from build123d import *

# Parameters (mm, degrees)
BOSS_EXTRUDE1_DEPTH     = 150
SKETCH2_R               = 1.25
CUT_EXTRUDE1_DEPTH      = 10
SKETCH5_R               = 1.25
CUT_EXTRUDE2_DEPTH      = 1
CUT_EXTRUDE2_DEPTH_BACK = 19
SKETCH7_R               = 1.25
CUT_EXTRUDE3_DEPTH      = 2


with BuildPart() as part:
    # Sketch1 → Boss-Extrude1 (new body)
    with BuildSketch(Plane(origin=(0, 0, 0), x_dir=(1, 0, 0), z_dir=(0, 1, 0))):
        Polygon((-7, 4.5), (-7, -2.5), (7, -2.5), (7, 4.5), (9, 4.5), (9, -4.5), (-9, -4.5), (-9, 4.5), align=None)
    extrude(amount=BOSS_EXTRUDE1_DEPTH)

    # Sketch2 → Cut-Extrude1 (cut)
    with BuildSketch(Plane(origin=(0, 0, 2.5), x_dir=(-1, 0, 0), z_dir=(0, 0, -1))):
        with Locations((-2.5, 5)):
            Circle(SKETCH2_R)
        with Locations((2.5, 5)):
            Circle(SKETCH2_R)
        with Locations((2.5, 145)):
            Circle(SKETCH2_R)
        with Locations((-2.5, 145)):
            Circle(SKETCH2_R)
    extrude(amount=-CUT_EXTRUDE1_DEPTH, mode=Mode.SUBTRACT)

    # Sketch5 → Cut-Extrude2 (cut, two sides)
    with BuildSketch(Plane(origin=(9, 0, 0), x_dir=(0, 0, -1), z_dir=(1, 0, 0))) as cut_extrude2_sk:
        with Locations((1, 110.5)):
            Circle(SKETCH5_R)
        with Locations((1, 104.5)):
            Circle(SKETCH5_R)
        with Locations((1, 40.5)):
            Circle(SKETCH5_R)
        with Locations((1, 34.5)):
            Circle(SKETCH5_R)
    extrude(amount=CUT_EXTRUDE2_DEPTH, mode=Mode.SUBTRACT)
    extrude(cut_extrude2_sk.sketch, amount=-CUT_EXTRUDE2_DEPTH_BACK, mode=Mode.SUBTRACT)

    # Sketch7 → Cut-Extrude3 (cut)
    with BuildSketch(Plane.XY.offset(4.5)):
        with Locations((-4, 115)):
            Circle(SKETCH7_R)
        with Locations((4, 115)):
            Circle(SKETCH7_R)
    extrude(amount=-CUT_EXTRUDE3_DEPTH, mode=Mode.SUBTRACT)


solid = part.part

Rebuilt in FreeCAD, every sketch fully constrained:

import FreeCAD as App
import Part
import Sketcher

V = App.Vector
Q = App.Units.Quantity


def add_polygon(sketch, points):
    """Adds a closed chain of lines whose ends are joined by coincident constraints."""
    first, n = sketch.GeometryCount, len(points)
    for a, b in zip(points, points[1:] + points[:1]):
        sketch.addGeometry(Part.LineSegment(App.Vector(*a, 0), App.Vector(*b, 0)), False)
    for i in range(n):
        sketch.addConstraint(Sketcher.Constraint("Coincident", first + i, 2, first + (i + 1) % n, 1))

doc = App.newDocument("Part")
params = doc.addObject("Spreadsheet::Sheet", "Params")
for row, (alias, value) in enumerate([
    ("sketch1_width", "2 mm"),
    ("sketch1_width2", "18 mm"),
    ("sketch1_height", "7 mm"),
    ("sketch1_height2", "9 mm"),
    ("pad1_length", "150 mm"),
    ("sketch2_diameter", "2.5 mm"),
    ("pocket1_length", "10 mm"),
    ("sketch3_diameter", "2.5 mm"),
    ("sketch4_diameter", "2.5 mm"),
    ("pocket3_length", "2 mm"),
], start=1):
    params.set(f"A{row}", alias)
    params.set(f"B{row}", "=" + value)
    params.setAlias(f"B{row}", alias)

body = doc.addObject("PartDesign::Body", "Body")

# Sketch on XZ plane
sketch1 = body.newObject("Sketcher::SketchObject", "Sketch")
sketch1.AttachmentSupport = (doc.getObject("XZ_Plane"), [""])
sketch1.MapMode = "FlatFace"
add_polygon(sketch1, [(-7, 2.5), (-7, -4.5), (-9, -4.5), (-9, 4.5), (9, 4.5), (9, -4.5), (7, -4.5), (7, 2.5)])  # lines 0-7
sketch1.addConstraint(Sketcher.Constraint("Vertical", 0))
sketch1.addConstraint(Sketcher.Constraint("Horizontal", 1))
sketch1.addConstraint(Sketcher.Constraint("Vertical", 2))
sketch1.addConstraint(Sketcher.Constraint("Horizontal", 3))
sketch1.addConstraint(Sketcher.Constraint("Vertical", 4))
sketch1.addConstraint(Sketcher.Constraint("Horizontal", 5))
sketch1.addConstraint(Sketcher.Constraint("Vertical", 6))
sketch1.addConstraint(Sketcher.Constraint("Horizontal", 7))
sketch1.addConstraint(Sketcher.Constraint("Symmetric", 1, 2, 3, 2, -1, 1))
sketch1.addConstraint(Sketcher.Constraint("Symmetric", 0, 2, 5, 2, -2))
sketch1.addConstraint(Sketcher.Constraint("DistanceX", 1, 2, 1, 1, Q("2 mm")))
sketch1.addConstraint(Sketcher.Constraint("DistanceX", 3, 1, 3, 2, Q("18 mm")))
sketch1.addConstraint(Sketcher.Constraint("DistanceY", 0, 2, 0, 1, Q("7 mm")))
sketch1.addConstraint(Sketcher.Constraint("DistanceY", 2, 1, 2, 2, Q("9 mm")))
sketch1.setExpression("Constraints[18]", "Params.sketch1_width")
sketch1.setExpression("Constraints[19]", "Params.sketch1_width2")
sketch1.setExpression("Constraints[20]", "Params.sketch1_height")
sketch1.setExpression("Constraints[21]", "Params.sketch1_height2")
pad1 = body.newObject("PartDesign::Pad", "Pad")
pad1.Profile = sketch1
pad1.setExpression("Length", "Params.pad1_length")
pad1.Reversed = True

# Sketch on XY plane
sketch2 = body.newObject("Sketcher::SketchObject", "Sketch001")
sketch2.AttachmentSupport = (doc.getObject("XY_Plane"), [""])
sketch2.MapMode = "FlatFace"
sketch2.AttachmentOffset = App.Placement(V(0, 0, 2.5), App.Rotation())
sketch2.addGeometry(Part.Circle(V(2.5, 5, 0), V(0, 0, 1), 1.2), False)
sketch2.addGeometry(Part.Circle(V(-2.5, 5, 0), V(0, 0, 1), 1.2), False)
sketch2.addGeometry(Part.Circle(V(-2.5, 145, 0), V(0, 0, 1), 1.2), False)
sketch2.addGeometry(Part.Circle(V(2.5, 145, 0), V(0, 0, 1), 1.2), False)
sketch2.addConstraint(Sketcher.Constraint("Equal", 0, 1))
sketch2.addConstraint(Sketcher.Constraint("Equal", 1, 2))
sketch2.addConstraint(Sketcher.Constraint("Equal", 2, 3))
sketch2.addConstraint(Sketcher.Constraint("Symmetric", 0, 3, 1, 3, -2))
sketch2.addConstraint(Sketcher.Constraint("Symmetric", 2, 3, 3, 3, -2))
sketch2.addConstraint(Sketcher.Constraint("Vertical", 1, 3, 2, 3))
sketch2.addConstraint(Sketcher.Constraint("Diameter", 0, Q("2.5 mm")))
sketch2.addConstraint(Sketcher.Constraint("DistanceY", -1, 1, 0, 3, Q("5 mm")))
sketch2.addConstraint(Sketcher.Constraint("DistanceY", -1, 1, 2, 3, Q("145 mm")))
sketch2.addConstraint(Sketcher.Constraint("DistanceX", 1, 3, 0, 3, Q("5 mm")))
sketch2.setExpression("Constraints[6]", "Params.sketch2_diameter")
pocket1 = body.newObject("PartDesign::Pocket", "Pocket")
pocket1.Profile = sketch2
pocket1.setExpression("Length", "Params.pocket1_length")
pocket1.Reversed = True

# Sketch on YZ plane
sketch3 = body.newObject("Sketcher::SketchObject", "Sketch002")
sketch3.AttachmentSupport = (doc.getObject("YZ_Plane"), [""])
sketch3.MapMode = "FlatFace"
sketch3.AttachmentOffset = App.Placement(V(0, 0, 9), App.Rotation())
sketch3.addGeometry(Part.Circle(V(110.5, -1, 0), V(0, 0, 1), 1.2), False)
sketch3.addGeometry(Part.Circle(V(104.5, -1, 0), V(0, 0, 1), 1.2), False)
sketch3.addGeometry(Part.Circle(V(40.5, -1, 0), V(0, 0, 1), 1.2), False)
sketch3.addGeometry(Part.Circle(V(34.5, -1, 0), V(0, 0, 1), 1.2), False)
sketch3.addConstraint(Sketcher.Constraint("Equal", 0, 1))
sketch3.addConstraint(Sketcher.Constraint("Equal", 1, 2))
sketch3.addConstraint(Sketcher.Constraint("Equal", 2, 3))
sketch3.addConstraint(Sketcher.Constraint("Horizontal", 0, 3, 1, 3))
sketch3.addConstraint(Sketcher.Constraint("Horizontal", 1, 3, 2, 3))
sketch3.addConstraint(Sketcher.Constraint("Horizontal", 2, 3, 3, 3))
sketch3.addConstraint(Sketcher.Constraint("Diameter", 0, Q("2.5 mm")))
sketch3.addConstraint(Sketcher.Constraint("DistanceY", 0, 3, -1, 1, Q("1 mm")))
sketch3.addConstraint(Sketcher.Constraint("DistanceX", 1, 3, 0, 3, Q("6 mm")))
sketch3.addConstraint(Sketcher.Constraint("DistanceX", 2, 3, 1, 3, Q("64 mm")))
sketch3.addConstraint(Sketcher.Constraint("DistanceX", 3, 3, 2, 3, Q("6 mm")))
sketch3.addConstraint(Sketcher.Constraint("DistanceX", -1, 1, 0, 3, Q("110.5 mm")))
sketch3.setExpression("Constraints[6]", "Params.sketch3_diameter")
pocket2 = body.newObject("PartDesign::Pocket", "Pocket001")
pocket2.Profile = sketch3
pocket2.Type = "ThroughAll"
pocket2.Midplane = True

# Sketch on XY plane
sketch4 = body.newObject("Sketcher::SketchObject", "Sketch003")
sketch4.AttachmentSupport = (doc.getObject("XY_Plane"), [""])
sketch4.MapMode = "FlatFace"
sketch4.AttachmentOffset = App.Placement(V(0, 0, 4.5), App.Rotation())
sketch4.addGeometry(Part.Circle(V(-4, 115, 0), V(0, 0, 1), 1.2), False)
sketch4.addGeometry(Part.Circle(V(4, 115, 0), V(0, 0, 1), 1.2), False)
sketch4.addConstraint(Sketcher.Constraint("Equal", 0, 1))
sketch4.addConstraint(Sketcher.Constraint("Symmetric", 0, 3, 1, 3, -2))
sketch4.addConstraint(Sketcher.Constraint("Diameter", 0, Q("2.5 mm")))
sketch4.addConstraint(Sketcher.Constraint("DistanceX", 0, 3, -1, 1, Q("4 mm")))
sketch4.addConstraint(Sketcher.Constraint("DistanceY", -1, 1, 0, 3, Q("115 mm")))
sketch4.setExpression("Constraints[2]", "Params.sketch4_diameter")
pocket3 = body.newObject("PartDesign::Pocket", "Pocket002")
pocket3.Profile = sketch4
pocket3.setExpression("Length", "Params.pocket3_length")

doc.recompute()
